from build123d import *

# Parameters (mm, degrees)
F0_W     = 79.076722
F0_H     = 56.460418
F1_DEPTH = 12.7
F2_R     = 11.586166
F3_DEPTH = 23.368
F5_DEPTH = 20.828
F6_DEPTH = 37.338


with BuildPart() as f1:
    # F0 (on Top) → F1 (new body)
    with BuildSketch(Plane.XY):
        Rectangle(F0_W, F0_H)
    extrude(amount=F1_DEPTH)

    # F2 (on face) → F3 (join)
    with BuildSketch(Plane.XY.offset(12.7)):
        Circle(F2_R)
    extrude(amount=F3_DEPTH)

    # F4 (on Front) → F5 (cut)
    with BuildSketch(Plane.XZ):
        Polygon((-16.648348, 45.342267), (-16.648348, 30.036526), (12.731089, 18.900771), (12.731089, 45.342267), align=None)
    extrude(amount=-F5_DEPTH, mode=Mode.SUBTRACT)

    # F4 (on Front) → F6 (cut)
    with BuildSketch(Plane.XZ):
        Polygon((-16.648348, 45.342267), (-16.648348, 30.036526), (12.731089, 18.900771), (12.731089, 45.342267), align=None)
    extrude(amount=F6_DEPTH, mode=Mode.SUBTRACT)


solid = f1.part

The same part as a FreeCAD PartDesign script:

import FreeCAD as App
import Part
import Sketcher
Q = App.Units.Quantity

doc = App.newDocument("Part")
body = doc.addObject("PartDesign::Body", "Body")

sketch1 = body.newObject("Sketcher::SketchObject", "Sketch")
sketch1.AttachmentSupport = (doc.getObject("XY_Plane"), [""])
sketch1.MapMode = "FlatFace"
sketch1.addGeometry(Part.LineSegment(App.Vector(-40, 28, 0), App.Vector(-40, -28, 0)), False)
sketch1.addGeometry(Part.LineSegment(App.Vector(-40, -28, 0), App.Vector(40, -28, 0)), False)
sketch1.addGeometry(Part.LineSegment(App.Vector(40, -28, 0), App.Vector(40, 28, 0)), False)
sketch1.addGeometry(Part.LineSegment(App.Vector(40, 28, 0), App.Vector(-40, 28, 0)), False)
sketch1.addConstraint(Sketcher.Constraint("Coincident", 0, 2, 1, 1))
sketch1.addConstraint(Sketcher.Constraint("Coincident", 1, 2, 2, 1))
sketch1.addConstraint(Sketcher.Constraint("Coincident", 2, 2, 3, 1))
sketch1.addConstraint(Sketcher.Constraint("Coincident", 3, 2, 0, 1))
sketch1.addConstraint(Sketcher.Constraint("Vertical", 0))
sketch1.addConstraint(Sketcher.Constraint("Horizontal", 1))
sketch1.addConstraint(Sketcher.Constraint("Vertical", 2))
sketch1.addConstraint(Sketcher.Constraint("Horizontal", 3))
sketch1.addConstraint(Sketcher.Constraint("Symmetric", 0, 2, 2, 2, -1, 1))
sketch1.addConstraint(Sketcher.Constraint("DistanceX", 1, 1, 1, 2, Q("79.076722 mm")))
sketch1.addConstraint(Sketcher.Constraint("DistanceY", 0, 2, 0, 1, Q("56.460418 mm")))
pad1 = body.newObject("PartDesign::Pad", "Pad")
pad1.Profile = sketch1
pad1.Length = Q("0.5 in")

sketch2 = body.newObject("Sketcher::SketchObject", "Sketch001")
sketch2.AttachmentSupport = (doc.getObject("XY_Plane"), [""])
sketch2.MapMode = "FlatFace"
sketch2.AttachmentOffset = App.Placement(App.Vector(0, 0, 0.5 * 25.4), App.Rotation())
sketch2.addGeometry(Part.Circle(App.Vector(0, 0, 0), App.Vector(0, 0, 1), 12), False)
sketch2.addConstraint(Sketcher.Constraint("Coincident", 0, 3, -1, 1))
sketch2.addConstraint(Sketcher.Constraint("Diameter", 0, Q("23.172332 mm")))
pad2 = body.newObject("PartDesign::Pad", "Pad001")
pad2.Profile = sketch2
pad2.Length = Q("0.92 in")

sketch3 = body.newObject("Sketcher::SketchObject", "Sketch002")
sketch3.AttachmentSupport = (doc.getObject("XZ_Plane"), [""])
sketch3.MapMode = "FlatFace"
sketch3.addGeometry(Part.LineSegment(App.Vector(-17, 45, 0), App.Vector(-17, 30, 0)), False)
sketch3.addGeometry(Part.LineSegment(App.Vector(-17, 30, 0), App.Vector(13, 19, 0)), False)
sketch3.addGeometry(Part.LineSegment(App.Vector(13, 19, 0), App.Vector(13, 45, 0)), False)
sketch3.addGeometry(Part.LineSegment(App.Vector(13, 45, 0), App.Vector(-17, 45, 0)), False)
sketch3.addConstraint(Sketcher.Constraint("Coincident", 0, 2, 1, 1))
sketch3.addConstraint(Sketcher.Constraint("Coincident", 1, 2, 2, 1))
sketch3.addConstraint(Sketcher.Constraint("Coincident", 2, 2, 3, 1))
sketch3.addConstraint(Sketcher.Constraint("Coincident", 3, 2, 0, 1))
sketch3.addConstraint(Sketcher.Constraint("Vertical", 0))
sketch3.addConstraint(Sketcher.Constraint("Vertical", 2))
sketch3.addConstraint(Sketcher.Constraint("Horizontal", 3))
sketch3.addConstraint(Sketcher.Constraint("DistanceY", 0, 2, 0, 1, Q("15.305741 mm")))
sketch3.addConstraint(Sketcher.Constraint("DistanceX", 3, 2, 3, 1, Q("29.379437 mm")))
sketch3.addConstraint(Sketcher.Constraint("DistanceY", 2, 1, 2, 2, Q("26.441496 mm")))
sketch3.addConstraint(Sketcher.Constraint("DistanceX", -1, 1, 1, 2, Q("12.731089 mm")))
sketch3.addConstraint(Sketcher.Constraint("DistanceY", -1, 1, 1, 2, Q("18.900771 mm")))
pocket1 = body.newObject("PartDesign::Pocket", "Pocket")
pocket1.Profile = sketch3
pocket1.Length = Q("0.82 in")

sketch4 = body.newObject("Sketcher::SketchObject", "Sketch003")
sketch4.AttachmentSupport = (doc.getObject("XZ_Plane"), [""])
sketch4.MapMode = "FlatFace"
sketch4.addGeometry(Part.LineSegment(App.Vector(-17, 45, 0), App.Vector(-17, 30, 0)), False)
sketch4.addGeometry(Part.LineSegment(App.Vector(-17, 30, 0), App.Vector(13, 19, 0)), False)
sketch4.addGeometry(Part.LineSegment(App.Vector(13, 19, 0), App.Vector(13, 45, 0)), False)
sketch4.addGeometry(Part.LineSegment(App.Vector(13, 45, 0), App.Vector(-17, 45, 0)), False)
sketch4.addConstraint(Sketcher.Constraint("Coincident", 0, 2, 1, 1))
sketch4.addConstraint(Sketcher.Constraint("Coincident", 1, 2, 2, 1))
sketch4.addConstraint(Sketcher.Constraint("Coincident", 2, 2, 3, 1))
sketch4.addConstraint(Sketcher.Constraint("Coincident", 3, 2, 0, 1))
sketch4.addConstraint(Sketcher.Constraint("Vertical", 0))
sketch4.addConstraint(Sketcher.Constraint("Vertical", 2))
sketch4.addConstraint(Sketcher.Constraint("Horizontal", 3))
sketch4.addConstraint(Sketcher.Constraint("DistanceY", 0, 2, 0, 1, Q("15.305741 mm")))
sketch4.addConstraint(Sketcher.Constraint("DistanceX", 3, 2, 3, 1, Q("29.379437 mm")))
sketch4.addConstraint(Sketcher.Constraint("DistanceY", 2, 1, 2, 2, Q("26.441496 mm")))
sketch4.addConstraint(Sketcher.Constraint("DistanceX", -1, 1, 1, 2, Q("12.731089 mm")))
sketch4.addConstraint(Sketcher.Constraint("DistanceY", -1, 1, 1, 2, Q("18.900771 mm")))
pocket2 = body.newObject("PartDesign::Pocket", "Pocket001")
pocket2.Profile = sketch4
pocket2.Length = Q("1.47 in")
pocket2.Reversed = True

doc.recompute()
